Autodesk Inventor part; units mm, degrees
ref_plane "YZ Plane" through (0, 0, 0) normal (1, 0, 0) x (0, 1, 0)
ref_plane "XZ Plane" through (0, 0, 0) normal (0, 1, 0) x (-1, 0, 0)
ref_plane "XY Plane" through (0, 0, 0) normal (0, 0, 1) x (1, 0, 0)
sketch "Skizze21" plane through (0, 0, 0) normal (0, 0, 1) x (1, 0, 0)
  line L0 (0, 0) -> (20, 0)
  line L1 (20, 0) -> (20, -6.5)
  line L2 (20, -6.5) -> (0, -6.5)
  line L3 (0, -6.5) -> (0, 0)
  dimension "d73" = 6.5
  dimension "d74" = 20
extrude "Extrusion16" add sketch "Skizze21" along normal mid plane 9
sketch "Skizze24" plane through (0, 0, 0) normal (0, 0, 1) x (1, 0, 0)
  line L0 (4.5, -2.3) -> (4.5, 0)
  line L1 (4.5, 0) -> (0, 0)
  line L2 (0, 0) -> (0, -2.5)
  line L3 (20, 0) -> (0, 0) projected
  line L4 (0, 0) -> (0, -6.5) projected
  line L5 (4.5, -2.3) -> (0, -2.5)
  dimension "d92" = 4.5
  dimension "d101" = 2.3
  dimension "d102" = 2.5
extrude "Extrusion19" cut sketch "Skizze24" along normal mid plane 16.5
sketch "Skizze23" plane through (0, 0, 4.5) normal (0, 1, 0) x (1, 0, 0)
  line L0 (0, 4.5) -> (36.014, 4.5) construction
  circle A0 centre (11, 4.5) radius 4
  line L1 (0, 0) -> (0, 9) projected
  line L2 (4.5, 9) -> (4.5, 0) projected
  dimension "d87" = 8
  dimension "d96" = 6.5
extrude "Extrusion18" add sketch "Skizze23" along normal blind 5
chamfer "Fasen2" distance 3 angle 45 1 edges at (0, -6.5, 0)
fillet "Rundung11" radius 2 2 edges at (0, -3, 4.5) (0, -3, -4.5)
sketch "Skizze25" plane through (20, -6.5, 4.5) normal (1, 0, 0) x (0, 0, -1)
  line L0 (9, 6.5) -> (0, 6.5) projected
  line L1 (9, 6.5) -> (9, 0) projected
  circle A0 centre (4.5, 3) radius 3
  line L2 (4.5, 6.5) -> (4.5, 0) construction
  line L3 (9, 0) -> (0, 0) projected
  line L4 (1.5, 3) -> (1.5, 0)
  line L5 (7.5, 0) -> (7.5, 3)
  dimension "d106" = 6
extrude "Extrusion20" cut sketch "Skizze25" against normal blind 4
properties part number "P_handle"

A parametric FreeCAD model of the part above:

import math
import FreeCAD as App
import Part
import Sketcher
Q = App.Units.Quantity


def edges_at(feature, points):
    """Names of the edges that pass closest to the given points."""
    edges = feature.Shape.Edges
    near = lambda p: min(range(len(edges)), key=lambda i: edges[i].distToShape(Part.Vertex(*p))[0])
    return sorted({f"Edge{near(p) + 1}" for p in points})


def add_polygon(sketch, points):
    """Adds a closed chain of lines whose ends are joined by coincident constraints."""
    first, n = sketch.GeometryCount, len(points)
    for a, b in zip(points, points[1:] + points[:1]):
        sketch.addGeometry(Part.LineSegment(App.Vector(*a, 0), App.Vector(*b, 0)), False)
    for i in range(n):
        sketch.addConstraint(Sketcher.Constraint("Coincident", first + i, 2, first + (i + 1) % n, 1))

doc = App.newDocument("Part")
params = doc.addObject("Spreadsheet::Sheet", "Params")
for row, (alias, value) in enumerate([
    ("sketch1_width", "20 mm"),
    ("sketch1_height", "6.5 mm"),
    ("pad1_length", "9 mm"),
    ("sketch2_width", "4.5 mm"),
    ("sketch2_height", "2.3 mm"),
    ("sketch2_height2", "2.5 mm"),
    ("pocket1_length", "16.5 mm"),
    ("sketch3_diameter", "8 mm"),
    ("pad2_length", "5 mm"),
    ("chamfer_size", "3 mm"),
    ("fillet_radius", "2 mm"),
    ("sketch4_radius", "3 mm"),
    ("sketch4_width", "3 mm"),
    ("pocket2_length", "4 mm"),
], start=1):
    params.set(f"A{row}", alias)
    params.set(f"B{row}", "=" + value)
    params.setAlias(f"B{row}", alias)

body = doc.addObject("PartDesign::Body", "Body")

sketch1 = doc.addObject("Sketcher::SketchObject", "Sketch")
body.addObject(sketch1)
sketch1.AttachmentSupport = (doc.XY_Plane, [""])
sketch1.MapMode = "FlatFace"
add_polygon(sketch1, [(20, 0), (0, 0), (0, -6), (20, -6)])
sketch1.addConstraint([
    Sketcher.Constraint("Horizontal", 0),
    Sketcher.Constraint("Vertical", 1),
    Sketcher.Constraint("Horizontal", 2),
    Sketcher.Constraint("Vertical", 3),
    Sketcher.Constraint("Coincident", 0, 2, -1, 1),
    Sketcher.Constraint("DistanceX", 0, 2, 0, 1, Q("20 mm")),
    Sketcher.Constraint("DistanceY", 1, 2, 1, 1, Q("6.5 mm")),
])
sketch1.setExpression("Constraints[9]", "Params.sketch1_width")
sketch1.setExpression("Constraints[10]", "Params.sketch1_height")
pad1 = doc.addObject("PartDesign::Pad", "Pad")
body.addObject(pad1)
pad1.Profile = sketch1
pad1.setExpression("Length", "Params.pad1_length")
pad1.Midplane = True

sketch2 = doc.addObject("Sketcher::SketchObject", "Sketch001")
body.addObject(sketch2)
sketch2.AttachmentSupport = (doc.XY_Plane, [""])
sketch2.MapMode = "FlatFace"
add_polygon(sketch2, [(0, -2.5), (4.5, -2.3), (4.5, 0), (0, 0)])
sketch2.addConstraint([
    Sketcher.Constraint("Vertical", 1),
    Sketcher.Constraint("Horizontal", 2),
    Sketcher.Constraint("Vertical", 3),
    Sketcher.Constraint("Coincident", 2, 2, -1, 1),
    Sketcher.Constraint("DistanceX", 2, 2, 2, 1, Q("4.5 mm")),
    Sketcher.Constraint("DistanceY", 1, 1, 1, 2, Q("2.3 mm")),
    Sketcher.Constraint("DistanceY", 3, 2, 3, 1, Q("2.5 mm")),
])
sketch2.setExpression("Constraints[8]", "Params.sketch2_width")
sketch2.setExpression("Constraints[9]", "Params.sketch2_height")
sketch2.setExpression("Constraints[10]", "Params.sketch2_height2")
pocket1 = doc.addObject("PartDesign::Pocket", "Pocket")
body.addObject(pocket1)
pocket1.Profile = sketch2
pocket1.setExpression("Length", "Params.pocket1_length")
pocket1.Midplane = True

sketch3 = doc.addObject("Sketcher::SketchObject", "Sketch002")
body.addObject(sketch3)
sketch3.AttachmentSupport = (doc.XZ_Plane, [""])
sketch3.MapMode = "FlatFace"
sketch3.addGeometry(Part.Circle(App.Vector(11, 0, 0), App.Vector(0, 0, 1), 4), False)
sketch3.addConstraint([
    Sketcher.Constraint("PointOnObject", 0, 3, -1),
    Sketcher.Constraint("Diameter", 0, Q("8 mm")),
    Sketcher.Constraint("DistanceX", -1, 1, 0, 3, Q("11 mm")),
])
sketch3.setExpression("Constraints[1]", "Params.sketch3_diameter")
pad2 = doc.addObject("PartDesign::Pad", "Pad001")
body.addObject(pad2)
pad2.Profile = sketch3
pad2.setExpression("Length", "Params.pad2_length")
pad2.Reversed = True
doc.recompute()

chamfer = doc.addObject("PartDesign::Chamfer", "Chamfer")
body.addObject(chamfer)
chamfer.Base = (pad2, edges_at(pad2, [(0, -6.5, 0)]))
chamfer.setExpression("Size", "Params.chamfer_size")
doc.recompute()

fillet = doc.addObject("PartDesign::Fillet", "Fillet")
body.addObject(fillet)
fillet.Base = (chamfer, edges_at(chamfer, [(0, -3, 4.5), (0, -3, -4.5)]))
fillet.setExpression("Radius", "Params.fillet_radius")

sketch4 = doc.addObject("Sketcher::SketchObject", "Sketch003")
body.addObject(sketch4)
sketch4.AttachmentSupport = (doc.YZ_Plane, [""])
sketch4.MapMode = "FlatFace"
sketch4.AttachmentOffset = App.Placement(App.Vector(0, 0, 20), App.Rotation())
sketch4.addGeometry([
    Part.ArcOfCircle(Part.Circle(App.Vector(-3.5, 0, 0), App.Vector(0, 0, 1), 3), math.radians(-90), math.radians(90)),
    Part.LineSegment(App.Vector(-3.5, 3, 0), App.Vector(-6.5, 3, 0)),
    Part.LineSegment(App.Vector(-6.5, 3, 0), App.Vector(-6.5, -3, 0)),
    Part.LineSegment(App.Vector(-6.5, -3, 0), App.Vector(-3.5, -3, 0)),
], False)
sketch4.addConstraint([
    Sketcher.Constraint("Tangent", 0, 2, 1, 1),
    Sketcher.Constraint("Coincident", 1, 2, 2, 1),
    Sketcher.Constraint("Coincident", 2, 2, 3, 1),
    Sketcher.Constraint("Tangent", 3, 2, 0, 1),
    Sketcher.Constraint("Horizontal", 1),
    Sketcher.Constraint("Vertical", 2),
    Sketcher.Constraint("Horizontal", 3),
    Sketcher.Constraint("PointOnObject", 0, 3, -1),
    Sketcher.Constraint("Radius", 0, Q("3 mm")),
    Sketcher.Constraint("DistanceX", 1, 2, 1, 1, Q("3 mm")),
    Sketcher.Constraint("DistanceX", 0, 3, -1, 1, Q("3.5 mm")),
])
sketch4.setExpression("Constraints[8]", "Params.sketch4_radius")
sketch4.setExpression("Constraints[9]", "Params.sketch4_width")
pocket2 = doc.addObject("PartDesign::Pocket", "Pocket001")
body.addObject(pocket2)
pocket2.Profile = sketch4
pocket2.setExpression("Length", "Params.pocket2_length")

doc.recompute()
